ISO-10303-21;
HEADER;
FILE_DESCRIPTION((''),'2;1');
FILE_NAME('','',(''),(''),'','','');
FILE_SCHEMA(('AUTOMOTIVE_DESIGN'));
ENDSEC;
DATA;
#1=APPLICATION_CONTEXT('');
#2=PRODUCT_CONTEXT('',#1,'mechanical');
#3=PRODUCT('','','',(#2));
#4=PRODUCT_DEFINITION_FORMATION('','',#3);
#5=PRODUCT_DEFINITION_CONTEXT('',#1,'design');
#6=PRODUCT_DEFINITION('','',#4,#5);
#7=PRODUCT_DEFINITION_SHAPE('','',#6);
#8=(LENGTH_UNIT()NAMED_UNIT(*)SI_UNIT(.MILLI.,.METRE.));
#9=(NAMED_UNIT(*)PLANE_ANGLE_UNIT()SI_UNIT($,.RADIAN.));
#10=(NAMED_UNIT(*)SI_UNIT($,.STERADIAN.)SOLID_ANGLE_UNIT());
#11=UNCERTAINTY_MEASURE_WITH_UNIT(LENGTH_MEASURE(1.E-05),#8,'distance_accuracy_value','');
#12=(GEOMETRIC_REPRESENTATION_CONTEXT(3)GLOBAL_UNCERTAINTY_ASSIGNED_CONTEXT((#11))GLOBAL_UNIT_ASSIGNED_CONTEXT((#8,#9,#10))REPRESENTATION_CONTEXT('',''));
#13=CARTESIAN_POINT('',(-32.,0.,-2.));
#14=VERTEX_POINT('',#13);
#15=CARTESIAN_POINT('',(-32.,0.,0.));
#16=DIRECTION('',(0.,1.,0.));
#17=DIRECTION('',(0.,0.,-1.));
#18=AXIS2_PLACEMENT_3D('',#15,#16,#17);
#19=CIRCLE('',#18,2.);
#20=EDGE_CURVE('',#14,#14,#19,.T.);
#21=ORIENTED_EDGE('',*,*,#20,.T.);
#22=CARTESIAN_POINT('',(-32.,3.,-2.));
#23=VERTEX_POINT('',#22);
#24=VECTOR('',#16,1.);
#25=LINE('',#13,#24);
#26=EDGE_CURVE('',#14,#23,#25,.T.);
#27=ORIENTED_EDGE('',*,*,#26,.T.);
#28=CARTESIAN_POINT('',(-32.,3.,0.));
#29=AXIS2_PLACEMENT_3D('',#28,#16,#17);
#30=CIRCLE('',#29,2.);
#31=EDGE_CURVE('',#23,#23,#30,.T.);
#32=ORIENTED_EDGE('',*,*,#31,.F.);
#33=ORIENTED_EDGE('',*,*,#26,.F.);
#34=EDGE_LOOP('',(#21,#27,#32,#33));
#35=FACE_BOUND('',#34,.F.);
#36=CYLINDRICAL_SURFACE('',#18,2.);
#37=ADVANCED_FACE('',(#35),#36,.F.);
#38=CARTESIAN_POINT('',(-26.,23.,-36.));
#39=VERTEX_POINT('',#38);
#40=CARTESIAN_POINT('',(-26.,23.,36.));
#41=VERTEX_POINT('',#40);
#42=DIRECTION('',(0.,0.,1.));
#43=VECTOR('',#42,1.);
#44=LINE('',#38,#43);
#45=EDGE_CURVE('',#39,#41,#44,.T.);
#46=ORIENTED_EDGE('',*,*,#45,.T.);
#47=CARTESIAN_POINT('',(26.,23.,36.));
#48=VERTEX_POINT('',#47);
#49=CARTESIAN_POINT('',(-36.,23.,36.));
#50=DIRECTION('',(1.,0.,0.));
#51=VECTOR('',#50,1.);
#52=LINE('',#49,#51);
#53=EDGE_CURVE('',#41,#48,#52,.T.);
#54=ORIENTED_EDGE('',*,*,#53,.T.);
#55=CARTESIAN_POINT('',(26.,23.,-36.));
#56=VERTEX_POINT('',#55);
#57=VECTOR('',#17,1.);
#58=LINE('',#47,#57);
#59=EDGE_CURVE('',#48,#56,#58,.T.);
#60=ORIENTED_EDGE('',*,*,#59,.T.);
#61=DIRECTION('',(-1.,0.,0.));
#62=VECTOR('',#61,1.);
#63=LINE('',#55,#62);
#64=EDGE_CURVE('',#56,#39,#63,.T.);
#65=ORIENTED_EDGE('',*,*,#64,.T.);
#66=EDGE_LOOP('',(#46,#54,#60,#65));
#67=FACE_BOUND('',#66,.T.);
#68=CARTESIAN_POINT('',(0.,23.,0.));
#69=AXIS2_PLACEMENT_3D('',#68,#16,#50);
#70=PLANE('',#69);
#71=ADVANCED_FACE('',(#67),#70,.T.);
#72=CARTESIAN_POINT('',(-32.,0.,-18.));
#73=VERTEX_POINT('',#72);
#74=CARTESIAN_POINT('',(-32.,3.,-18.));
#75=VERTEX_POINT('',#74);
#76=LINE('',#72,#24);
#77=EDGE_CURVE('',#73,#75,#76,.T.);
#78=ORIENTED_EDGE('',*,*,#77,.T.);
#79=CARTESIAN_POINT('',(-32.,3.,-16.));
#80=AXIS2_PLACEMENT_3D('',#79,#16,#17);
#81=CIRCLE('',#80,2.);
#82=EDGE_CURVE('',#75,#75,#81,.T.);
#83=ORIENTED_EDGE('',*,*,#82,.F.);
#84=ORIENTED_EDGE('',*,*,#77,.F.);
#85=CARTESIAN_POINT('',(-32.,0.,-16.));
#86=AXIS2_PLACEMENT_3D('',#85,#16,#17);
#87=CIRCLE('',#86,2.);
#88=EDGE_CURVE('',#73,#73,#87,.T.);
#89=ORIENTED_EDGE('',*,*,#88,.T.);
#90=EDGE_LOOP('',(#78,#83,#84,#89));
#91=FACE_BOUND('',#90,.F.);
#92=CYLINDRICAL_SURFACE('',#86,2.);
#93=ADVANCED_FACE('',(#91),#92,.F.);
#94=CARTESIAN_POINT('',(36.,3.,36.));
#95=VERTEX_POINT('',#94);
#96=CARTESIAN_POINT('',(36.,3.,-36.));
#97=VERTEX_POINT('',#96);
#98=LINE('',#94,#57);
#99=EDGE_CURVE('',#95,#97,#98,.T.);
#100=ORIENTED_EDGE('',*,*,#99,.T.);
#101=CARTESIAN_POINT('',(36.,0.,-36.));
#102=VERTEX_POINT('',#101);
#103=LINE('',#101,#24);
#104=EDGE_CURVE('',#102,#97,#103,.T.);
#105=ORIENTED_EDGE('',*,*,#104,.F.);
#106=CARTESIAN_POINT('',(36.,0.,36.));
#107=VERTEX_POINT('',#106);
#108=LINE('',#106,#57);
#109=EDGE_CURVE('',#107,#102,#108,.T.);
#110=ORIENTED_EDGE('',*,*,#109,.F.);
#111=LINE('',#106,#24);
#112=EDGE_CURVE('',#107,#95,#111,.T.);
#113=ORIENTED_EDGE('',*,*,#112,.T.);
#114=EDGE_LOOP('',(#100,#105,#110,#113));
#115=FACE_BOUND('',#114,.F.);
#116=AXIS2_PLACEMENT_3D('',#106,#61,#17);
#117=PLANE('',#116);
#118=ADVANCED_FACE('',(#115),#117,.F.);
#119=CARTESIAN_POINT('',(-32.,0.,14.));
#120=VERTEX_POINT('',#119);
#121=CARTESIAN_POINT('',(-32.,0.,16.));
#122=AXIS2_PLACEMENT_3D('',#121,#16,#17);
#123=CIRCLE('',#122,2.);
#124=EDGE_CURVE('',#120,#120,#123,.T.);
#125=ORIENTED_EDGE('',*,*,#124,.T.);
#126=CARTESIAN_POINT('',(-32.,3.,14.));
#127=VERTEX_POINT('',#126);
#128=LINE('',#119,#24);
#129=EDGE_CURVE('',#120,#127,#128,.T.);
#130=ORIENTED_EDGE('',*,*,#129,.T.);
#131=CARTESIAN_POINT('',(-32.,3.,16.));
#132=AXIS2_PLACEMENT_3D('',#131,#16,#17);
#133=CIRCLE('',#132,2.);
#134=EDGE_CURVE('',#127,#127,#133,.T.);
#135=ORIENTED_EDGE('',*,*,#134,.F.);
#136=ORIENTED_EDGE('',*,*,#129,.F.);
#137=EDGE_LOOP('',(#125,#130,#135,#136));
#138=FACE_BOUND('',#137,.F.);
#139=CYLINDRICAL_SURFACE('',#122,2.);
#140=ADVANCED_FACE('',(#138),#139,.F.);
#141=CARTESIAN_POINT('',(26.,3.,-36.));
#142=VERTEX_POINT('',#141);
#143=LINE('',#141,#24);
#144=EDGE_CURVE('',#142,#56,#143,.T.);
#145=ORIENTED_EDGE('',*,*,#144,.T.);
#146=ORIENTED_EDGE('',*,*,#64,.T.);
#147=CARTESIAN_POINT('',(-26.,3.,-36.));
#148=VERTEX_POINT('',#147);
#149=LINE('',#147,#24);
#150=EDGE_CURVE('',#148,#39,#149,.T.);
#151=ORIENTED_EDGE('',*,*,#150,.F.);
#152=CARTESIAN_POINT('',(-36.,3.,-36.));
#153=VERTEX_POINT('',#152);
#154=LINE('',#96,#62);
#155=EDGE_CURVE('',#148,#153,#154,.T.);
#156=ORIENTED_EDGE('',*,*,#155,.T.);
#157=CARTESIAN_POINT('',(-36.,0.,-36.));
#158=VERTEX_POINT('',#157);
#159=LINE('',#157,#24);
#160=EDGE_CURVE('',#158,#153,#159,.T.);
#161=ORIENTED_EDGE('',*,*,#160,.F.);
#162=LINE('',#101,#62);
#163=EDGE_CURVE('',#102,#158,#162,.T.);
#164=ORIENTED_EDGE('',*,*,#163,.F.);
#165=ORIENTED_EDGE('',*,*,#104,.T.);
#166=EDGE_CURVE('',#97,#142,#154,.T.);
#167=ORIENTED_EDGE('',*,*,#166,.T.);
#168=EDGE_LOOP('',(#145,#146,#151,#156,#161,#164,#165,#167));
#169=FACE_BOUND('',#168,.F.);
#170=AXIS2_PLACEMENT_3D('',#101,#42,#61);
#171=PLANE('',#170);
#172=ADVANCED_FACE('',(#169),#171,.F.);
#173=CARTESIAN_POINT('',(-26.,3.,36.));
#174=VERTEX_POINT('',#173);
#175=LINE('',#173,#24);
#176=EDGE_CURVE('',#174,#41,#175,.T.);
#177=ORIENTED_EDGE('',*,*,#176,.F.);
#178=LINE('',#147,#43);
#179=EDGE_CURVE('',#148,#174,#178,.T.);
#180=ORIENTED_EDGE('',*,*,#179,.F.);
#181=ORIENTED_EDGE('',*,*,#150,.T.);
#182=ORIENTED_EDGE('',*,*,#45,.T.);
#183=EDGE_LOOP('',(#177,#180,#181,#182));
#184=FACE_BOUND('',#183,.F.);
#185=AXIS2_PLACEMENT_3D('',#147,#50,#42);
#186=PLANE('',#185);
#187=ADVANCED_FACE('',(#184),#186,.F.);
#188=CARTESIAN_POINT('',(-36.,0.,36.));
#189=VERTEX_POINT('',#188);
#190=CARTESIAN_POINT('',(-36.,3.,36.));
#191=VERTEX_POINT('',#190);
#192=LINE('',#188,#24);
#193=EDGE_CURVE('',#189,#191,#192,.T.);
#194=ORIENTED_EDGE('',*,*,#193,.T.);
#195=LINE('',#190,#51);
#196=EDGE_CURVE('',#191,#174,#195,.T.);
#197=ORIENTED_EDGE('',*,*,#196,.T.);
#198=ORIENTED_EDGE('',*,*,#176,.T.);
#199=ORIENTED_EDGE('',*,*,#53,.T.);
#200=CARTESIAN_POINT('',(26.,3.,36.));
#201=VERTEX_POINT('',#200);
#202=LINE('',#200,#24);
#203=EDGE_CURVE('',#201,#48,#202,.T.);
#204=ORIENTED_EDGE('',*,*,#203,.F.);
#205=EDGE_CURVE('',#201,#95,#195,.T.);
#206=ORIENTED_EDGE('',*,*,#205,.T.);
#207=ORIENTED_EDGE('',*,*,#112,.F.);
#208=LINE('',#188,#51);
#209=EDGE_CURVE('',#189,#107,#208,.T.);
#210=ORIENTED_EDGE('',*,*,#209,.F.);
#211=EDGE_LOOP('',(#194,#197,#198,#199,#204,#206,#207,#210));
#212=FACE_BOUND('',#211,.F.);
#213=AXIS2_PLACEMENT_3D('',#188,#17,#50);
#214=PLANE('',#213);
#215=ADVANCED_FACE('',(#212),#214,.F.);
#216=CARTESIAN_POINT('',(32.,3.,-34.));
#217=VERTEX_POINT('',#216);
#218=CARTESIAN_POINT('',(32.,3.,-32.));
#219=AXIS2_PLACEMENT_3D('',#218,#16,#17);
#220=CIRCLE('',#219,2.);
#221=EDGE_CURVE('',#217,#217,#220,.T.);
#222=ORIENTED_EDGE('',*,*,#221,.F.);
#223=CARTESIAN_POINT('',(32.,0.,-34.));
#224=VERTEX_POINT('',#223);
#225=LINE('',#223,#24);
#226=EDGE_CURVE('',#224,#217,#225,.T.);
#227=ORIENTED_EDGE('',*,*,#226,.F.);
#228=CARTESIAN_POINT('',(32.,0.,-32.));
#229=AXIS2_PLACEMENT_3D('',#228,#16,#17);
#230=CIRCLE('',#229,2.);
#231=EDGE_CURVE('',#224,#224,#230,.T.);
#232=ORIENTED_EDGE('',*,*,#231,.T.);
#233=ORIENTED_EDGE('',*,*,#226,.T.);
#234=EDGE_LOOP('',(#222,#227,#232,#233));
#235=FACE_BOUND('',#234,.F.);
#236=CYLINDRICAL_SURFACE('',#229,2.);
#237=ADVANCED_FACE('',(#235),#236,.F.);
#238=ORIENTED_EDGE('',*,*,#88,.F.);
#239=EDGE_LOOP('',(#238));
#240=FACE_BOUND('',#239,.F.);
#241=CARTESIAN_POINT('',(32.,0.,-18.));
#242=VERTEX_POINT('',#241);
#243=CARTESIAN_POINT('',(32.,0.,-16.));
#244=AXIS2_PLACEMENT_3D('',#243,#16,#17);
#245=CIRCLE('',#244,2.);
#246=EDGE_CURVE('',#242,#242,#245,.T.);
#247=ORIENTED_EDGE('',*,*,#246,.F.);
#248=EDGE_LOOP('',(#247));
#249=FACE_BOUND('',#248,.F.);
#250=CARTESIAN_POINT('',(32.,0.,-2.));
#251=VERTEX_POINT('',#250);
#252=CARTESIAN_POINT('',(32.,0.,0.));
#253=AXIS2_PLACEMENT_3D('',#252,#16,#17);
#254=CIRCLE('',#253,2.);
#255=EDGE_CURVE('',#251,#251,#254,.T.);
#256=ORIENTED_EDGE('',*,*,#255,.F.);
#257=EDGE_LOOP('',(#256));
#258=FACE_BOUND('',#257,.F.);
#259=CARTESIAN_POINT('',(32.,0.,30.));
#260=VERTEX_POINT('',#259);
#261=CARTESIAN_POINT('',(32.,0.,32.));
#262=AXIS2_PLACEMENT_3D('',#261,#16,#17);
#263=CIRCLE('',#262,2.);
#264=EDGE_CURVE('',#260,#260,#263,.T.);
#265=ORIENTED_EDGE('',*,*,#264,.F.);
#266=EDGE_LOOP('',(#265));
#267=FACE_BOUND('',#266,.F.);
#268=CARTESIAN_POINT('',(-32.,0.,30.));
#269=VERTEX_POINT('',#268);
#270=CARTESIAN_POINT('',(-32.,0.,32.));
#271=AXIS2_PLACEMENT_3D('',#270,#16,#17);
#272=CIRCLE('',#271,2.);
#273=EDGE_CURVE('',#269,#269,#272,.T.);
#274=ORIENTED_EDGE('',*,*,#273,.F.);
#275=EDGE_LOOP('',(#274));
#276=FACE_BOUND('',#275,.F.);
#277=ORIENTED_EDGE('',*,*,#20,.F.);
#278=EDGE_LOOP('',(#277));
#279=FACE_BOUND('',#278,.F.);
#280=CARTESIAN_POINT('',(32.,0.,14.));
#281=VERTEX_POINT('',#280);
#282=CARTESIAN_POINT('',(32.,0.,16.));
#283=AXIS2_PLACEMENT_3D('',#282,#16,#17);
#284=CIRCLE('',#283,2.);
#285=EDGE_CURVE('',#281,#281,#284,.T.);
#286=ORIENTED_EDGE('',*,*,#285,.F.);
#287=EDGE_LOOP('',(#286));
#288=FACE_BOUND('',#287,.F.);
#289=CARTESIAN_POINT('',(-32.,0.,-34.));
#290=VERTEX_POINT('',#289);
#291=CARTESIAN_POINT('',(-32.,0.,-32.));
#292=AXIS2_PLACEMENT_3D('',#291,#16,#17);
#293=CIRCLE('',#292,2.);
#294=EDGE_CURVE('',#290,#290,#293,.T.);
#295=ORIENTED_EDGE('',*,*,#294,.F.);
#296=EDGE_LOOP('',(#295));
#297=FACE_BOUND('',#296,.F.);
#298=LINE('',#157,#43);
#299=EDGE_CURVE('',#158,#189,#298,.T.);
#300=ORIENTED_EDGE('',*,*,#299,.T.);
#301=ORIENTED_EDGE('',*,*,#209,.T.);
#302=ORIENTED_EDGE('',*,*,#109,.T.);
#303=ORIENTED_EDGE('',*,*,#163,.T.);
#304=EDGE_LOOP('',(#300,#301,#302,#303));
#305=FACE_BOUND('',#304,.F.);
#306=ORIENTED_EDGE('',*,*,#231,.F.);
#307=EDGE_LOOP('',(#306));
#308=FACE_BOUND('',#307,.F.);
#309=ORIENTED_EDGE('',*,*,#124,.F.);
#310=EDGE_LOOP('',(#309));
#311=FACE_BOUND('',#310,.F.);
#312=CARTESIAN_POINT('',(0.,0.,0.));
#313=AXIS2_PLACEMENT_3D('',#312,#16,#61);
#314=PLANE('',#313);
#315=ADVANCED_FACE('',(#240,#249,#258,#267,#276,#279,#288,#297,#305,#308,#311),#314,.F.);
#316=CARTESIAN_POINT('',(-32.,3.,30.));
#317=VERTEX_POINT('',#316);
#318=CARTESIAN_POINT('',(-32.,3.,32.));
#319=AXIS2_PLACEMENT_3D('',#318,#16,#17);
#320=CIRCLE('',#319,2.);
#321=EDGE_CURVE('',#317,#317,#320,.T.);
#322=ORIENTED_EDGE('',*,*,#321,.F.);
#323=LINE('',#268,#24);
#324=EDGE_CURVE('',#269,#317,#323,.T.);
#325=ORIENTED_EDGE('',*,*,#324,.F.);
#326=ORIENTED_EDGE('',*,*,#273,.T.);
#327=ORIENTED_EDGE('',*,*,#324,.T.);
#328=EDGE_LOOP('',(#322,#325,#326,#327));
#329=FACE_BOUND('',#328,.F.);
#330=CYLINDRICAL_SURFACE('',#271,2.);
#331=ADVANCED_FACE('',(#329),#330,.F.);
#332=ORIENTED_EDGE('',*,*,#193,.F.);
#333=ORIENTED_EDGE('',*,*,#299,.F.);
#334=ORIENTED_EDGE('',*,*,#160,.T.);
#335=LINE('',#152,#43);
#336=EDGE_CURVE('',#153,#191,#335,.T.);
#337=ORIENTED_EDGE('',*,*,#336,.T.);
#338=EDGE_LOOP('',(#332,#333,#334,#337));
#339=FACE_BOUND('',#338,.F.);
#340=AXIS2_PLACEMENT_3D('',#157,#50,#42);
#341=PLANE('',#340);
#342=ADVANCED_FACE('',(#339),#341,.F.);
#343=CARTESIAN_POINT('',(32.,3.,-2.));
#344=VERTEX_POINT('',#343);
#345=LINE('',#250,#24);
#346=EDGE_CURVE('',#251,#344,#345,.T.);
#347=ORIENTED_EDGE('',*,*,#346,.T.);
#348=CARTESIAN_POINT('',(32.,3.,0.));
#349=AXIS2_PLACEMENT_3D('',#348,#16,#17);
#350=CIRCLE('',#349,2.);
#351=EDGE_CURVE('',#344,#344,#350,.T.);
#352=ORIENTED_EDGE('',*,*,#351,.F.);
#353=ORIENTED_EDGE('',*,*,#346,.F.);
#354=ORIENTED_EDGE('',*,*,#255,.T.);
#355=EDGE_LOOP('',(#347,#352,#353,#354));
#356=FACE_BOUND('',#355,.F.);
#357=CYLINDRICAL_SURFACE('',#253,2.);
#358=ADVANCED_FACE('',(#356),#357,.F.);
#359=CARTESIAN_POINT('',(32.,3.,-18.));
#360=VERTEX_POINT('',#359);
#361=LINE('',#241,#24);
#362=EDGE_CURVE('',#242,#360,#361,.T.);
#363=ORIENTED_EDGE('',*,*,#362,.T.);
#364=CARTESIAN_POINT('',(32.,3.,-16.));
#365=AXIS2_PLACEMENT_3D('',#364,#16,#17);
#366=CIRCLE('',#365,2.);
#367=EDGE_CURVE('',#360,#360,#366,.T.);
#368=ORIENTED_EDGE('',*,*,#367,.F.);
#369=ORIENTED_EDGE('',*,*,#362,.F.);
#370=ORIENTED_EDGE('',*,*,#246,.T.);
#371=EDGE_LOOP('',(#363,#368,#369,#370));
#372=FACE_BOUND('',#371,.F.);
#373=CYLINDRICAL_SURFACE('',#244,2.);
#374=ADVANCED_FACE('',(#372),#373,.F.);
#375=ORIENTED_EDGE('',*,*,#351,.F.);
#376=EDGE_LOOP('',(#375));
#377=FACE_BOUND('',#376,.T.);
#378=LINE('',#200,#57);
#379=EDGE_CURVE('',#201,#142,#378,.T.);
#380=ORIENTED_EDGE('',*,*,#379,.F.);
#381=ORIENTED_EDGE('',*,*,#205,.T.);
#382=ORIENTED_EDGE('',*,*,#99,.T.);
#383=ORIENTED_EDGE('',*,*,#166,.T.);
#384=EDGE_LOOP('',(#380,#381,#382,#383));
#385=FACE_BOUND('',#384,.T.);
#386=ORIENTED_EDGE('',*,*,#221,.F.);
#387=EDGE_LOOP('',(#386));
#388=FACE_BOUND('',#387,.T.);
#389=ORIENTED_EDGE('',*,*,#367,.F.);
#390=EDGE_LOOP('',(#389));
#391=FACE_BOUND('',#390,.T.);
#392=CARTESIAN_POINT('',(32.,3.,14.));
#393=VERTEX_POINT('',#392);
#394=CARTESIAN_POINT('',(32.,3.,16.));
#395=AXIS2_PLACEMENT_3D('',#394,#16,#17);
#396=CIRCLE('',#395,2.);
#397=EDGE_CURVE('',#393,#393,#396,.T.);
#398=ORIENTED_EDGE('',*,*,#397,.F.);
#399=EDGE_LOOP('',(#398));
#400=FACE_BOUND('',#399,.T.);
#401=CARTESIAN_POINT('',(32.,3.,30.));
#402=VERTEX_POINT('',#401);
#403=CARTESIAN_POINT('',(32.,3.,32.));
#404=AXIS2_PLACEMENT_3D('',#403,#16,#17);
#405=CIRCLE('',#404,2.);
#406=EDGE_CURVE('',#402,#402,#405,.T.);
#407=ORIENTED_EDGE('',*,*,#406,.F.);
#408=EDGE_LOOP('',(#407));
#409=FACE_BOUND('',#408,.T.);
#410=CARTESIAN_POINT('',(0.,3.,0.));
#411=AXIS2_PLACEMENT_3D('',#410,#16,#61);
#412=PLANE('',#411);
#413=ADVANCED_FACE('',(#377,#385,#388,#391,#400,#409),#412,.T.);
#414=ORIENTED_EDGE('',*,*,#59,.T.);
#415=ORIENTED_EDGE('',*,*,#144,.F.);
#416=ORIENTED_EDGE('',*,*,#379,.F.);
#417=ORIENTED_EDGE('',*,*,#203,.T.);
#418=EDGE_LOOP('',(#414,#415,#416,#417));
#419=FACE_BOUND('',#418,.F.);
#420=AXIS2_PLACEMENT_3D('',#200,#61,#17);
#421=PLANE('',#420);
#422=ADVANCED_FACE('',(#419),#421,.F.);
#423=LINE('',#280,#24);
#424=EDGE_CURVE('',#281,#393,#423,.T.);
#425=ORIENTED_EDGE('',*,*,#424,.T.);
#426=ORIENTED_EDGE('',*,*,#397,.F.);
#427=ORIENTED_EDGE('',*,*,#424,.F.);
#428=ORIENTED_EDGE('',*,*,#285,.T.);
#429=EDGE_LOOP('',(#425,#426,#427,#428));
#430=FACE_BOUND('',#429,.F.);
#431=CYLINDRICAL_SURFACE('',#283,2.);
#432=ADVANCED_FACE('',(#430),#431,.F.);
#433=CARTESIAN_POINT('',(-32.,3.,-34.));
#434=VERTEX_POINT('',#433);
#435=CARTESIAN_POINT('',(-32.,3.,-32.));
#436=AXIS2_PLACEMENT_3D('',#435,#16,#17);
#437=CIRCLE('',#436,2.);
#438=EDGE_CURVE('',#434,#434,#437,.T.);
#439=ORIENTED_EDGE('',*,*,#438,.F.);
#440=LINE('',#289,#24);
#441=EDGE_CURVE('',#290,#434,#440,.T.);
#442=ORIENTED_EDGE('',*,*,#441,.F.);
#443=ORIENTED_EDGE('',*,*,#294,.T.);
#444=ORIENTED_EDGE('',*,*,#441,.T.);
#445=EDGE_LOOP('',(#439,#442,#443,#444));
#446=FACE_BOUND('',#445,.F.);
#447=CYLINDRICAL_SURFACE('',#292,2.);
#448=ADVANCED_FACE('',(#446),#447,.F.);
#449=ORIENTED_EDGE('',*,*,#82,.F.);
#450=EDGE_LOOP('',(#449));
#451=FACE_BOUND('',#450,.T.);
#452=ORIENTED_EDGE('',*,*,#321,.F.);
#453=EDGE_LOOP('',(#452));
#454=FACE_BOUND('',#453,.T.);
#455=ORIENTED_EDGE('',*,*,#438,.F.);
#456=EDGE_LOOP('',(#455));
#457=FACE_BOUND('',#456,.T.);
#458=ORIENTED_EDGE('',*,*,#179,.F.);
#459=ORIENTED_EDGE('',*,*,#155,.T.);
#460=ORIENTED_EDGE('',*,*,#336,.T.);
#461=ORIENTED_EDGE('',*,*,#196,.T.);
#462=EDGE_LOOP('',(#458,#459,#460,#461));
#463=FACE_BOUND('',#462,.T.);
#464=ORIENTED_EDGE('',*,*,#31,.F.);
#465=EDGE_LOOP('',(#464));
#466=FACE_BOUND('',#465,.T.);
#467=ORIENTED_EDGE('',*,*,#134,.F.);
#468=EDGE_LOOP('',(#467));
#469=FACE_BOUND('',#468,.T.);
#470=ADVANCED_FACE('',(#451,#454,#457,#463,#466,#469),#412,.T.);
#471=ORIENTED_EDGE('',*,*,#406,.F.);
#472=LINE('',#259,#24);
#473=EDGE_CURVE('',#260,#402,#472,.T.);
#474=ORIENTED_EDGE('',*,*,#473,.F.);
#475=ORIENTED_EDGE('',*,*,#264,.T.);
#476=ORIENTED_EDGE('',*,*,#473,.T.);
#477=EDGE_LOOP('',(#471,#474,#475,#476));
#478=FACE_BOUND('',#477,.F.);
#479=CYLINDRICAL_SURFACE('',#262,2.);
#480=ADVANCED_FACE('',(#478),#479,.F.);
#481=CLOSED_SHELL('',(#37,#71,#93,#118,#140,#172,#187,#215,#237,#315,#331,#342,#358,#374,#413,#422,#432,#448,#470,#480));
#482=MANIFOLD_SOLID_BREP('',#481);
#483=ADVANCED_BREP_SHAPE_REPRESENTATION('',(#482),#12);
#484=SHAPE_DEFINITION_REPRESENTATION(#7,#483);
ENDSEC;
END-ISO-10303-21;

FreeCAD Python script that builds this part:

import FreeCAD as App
import Part
import Sketcher
Q = App.Units.Quantity


def add_polygon(sketch, points):
    """Adds a closed chain of lines whose ends are joined by coincident constraints."""
    first, n = sketch.GeometryCount, len(points)
    for a, b in zip(points, points[1:] + points[:1]):
        sketch.addGeometry(Part.LineSegment(App.Vector(*a, 0), App.Vector(*b, 0)), False)
    for i in range(n):
        sketch.addConstraint(Sketcher.Constraint("Coincident", first + i, 2, first + (i + 1) % n, 1))

doc = App.newDocument("Part")
body = doc.addObject("PartDesign::Body", "Body")

sketch1 = body.newObject("Sketcher::SketchObject", "Sketch")
sketch1.AttachmentSupport = (doc.getObject("XZ_Plane"), [""])
sketch1.MapMode = "FlatFace"
add_polygon(sketch1, [(36, 36), (36, -36), (-36, -36), (-36, 36)])
sketch1.addConstraint([
    Sketcher.Constraint("Vertical", 0),
    Sketcher.Constraint("Horizontal", 1),
    Sketcher.Constraint("Vertical", 2),
    Sketcher.Constraint("Horizontal", 3),
    Sketcher.Constraint("Symmetric", 0, 2, 2, 2, -1, 1),
    Sketcher.Constraint("Equal", 3, 0),
    Sketcher.Constraint("DistanceX", 1, 2, 1, 1, Q("72 mm")),
])
pad1 = body.newObject("PartDesign::Pad", "Pad")
pad1.Profile = sketch1
pad1.Length = 3
pad1.Reversed = True

sketch2 = body.newObject("Sketcher::SketchObject", "Sketch001")
sketch2.AttachmentSupport = (doc.getObject("XZ_Plane"), [""])
sketch2.MapMode = "FlatFace"
sketch2.AttachmentOffset = App.Placement(App.Vector(0, 0, -3), App.Rotation())
add_polygon(sketch2, [(-26, -36), (-26, 36), (26, 36), (26, -36)])
sketch2.addConstraint([
    Sketcher.Constraint("Vertical", 0),
    Sketcher.Constraint("Horizontal", 1),
    Sketcher.Constraint("Vertical", 2),
    Sketcher.Constraint("Horizontal", 3),
    Sketcher.Constraint("Symmetric", 0, 2, 2, 2, -1, 1),
    Sketcher.Constraint("DistanceX", 1, 1, 1, 2, Q("52 mm")),
    Sketcher.Constraint("DistanceY", 0, 1, 0, 2, Q("72 mm")),
])
pad2 = body.newObject("PartDesign::Pad", "Pad001")
pad2.Profile = sketch2
pad2.Length = 20
pad2.Reversed = True

sketch3 = body.newObject("Sketcher::SketchObject", "Sketch002")
sketch3.AttachmentSupport = (doc.getObject("XZ_Plane"), [""])
sketch3.MapMode = "FlatFace"
sketch3.addGeometry([
    Part.Circle(App.Vector(-32, 32, 0), App.Vector(0, 0, 1), 2),
    Part.Circle(App.Vector(-32, 16, 0), App.Vector(0, 0, 1), 2),
    Part.Circle(App.Vector(-32, 0, 0), App.Vector(0, 0, 1), 2),
    Part.Circle(App.Vector(-32, -16, 0), App.Vector(0, 0, 1), 2),
    Part.Circle(App.Vector(-32, -32, 0), App.Vector(0, 0, 1), 2),
], False)
sketch3.addConstraint([
    Sketcher.Constraint("Equal", 0, 1),
    Sketcher.Constraint("Equal", 1, 2),
    Sketcher.Constraint("Equal", 2, 3),
    Sketcher.Constraint("Equal", 3, 4),
    Sketcher.Constraint("Symmetric", 1, 3, 3, 3, -1),
    Sketcher.Constraint("Symmetric", 0, 3, 4, 3, -1),
    Sketcher.Constraint("PointOnObject", 2, 3, -1),
    Sketcher.Constraint("Vertical", 0, 3, 1, 3),
    Sketcher.Constraint("Vertical", 1, 3, 2, 3),
    Sketcher.Constraint("Diameter", 0, Q("4 mm")),
    Sketcher.Constraint("DistanceX", 0, 3, -1, 1, Q("32 mm")),
    Sketcher.Constraint("DistanceY", -1, 1, 0, 3, Q("32 mm")),
    Sketcher.Constraint("DistanceY", -1, 1, 1, 3, Q("16 mm")),
])
doc.recompute()
hole = body.newObject("PartDesign::Hole", "Hole")
hole.Profile = sketch3
hole.ThreadType = "None"
hole.Diameter = 4
hole.DepthType = "ThroughAll"

sketch4 = body.newObject("Sketcher::SketchObject", "Sketch003")
sketch4.AttachmentSupport = (doc.getObject("XZ_Plane"), [""])
sketch4.MapMode = "FlatFace"
sketch4.addGeometry([
    Part.Circle(App.Vector(32, 32, 0), App.Vector(0, 0, 1), 2),
    Part.Circle(App.Vector(32, 16, 0), App.Vector(0, 0, 1), 2),
    Part.Circle(App.Vector(32, 0, 0), App.Vector(0, 0, 1), 2),
    Part.Circle(App.Vector(32, -16, 0), App.Vector(0, 0, 1), 2),
    Part.Circle(App.Vector(32, -32, 0), App.Vector(0, 0, 1), 2),
], False)
sketch4.addConstraint([
    Sketcher.Constraint("Equal", 0, 1),
    Sketcher.Constraint("Equal", 1, 2),
    Sketcher.Constraint("Equal", 2, 3),
    Sketcher.Constraint("Equal", 3, 4),
    Sketcher.Constraint("Symmetric", 1, 3, 3, 3, -1),
    Sketcher.Constraint("Symmetric", 0, 3, 4, 3, -1),
    Sketcher.Constraint("PointOnObject", 2, 3, -1),
    Sketcher.Constraint("Vertical", 0, 3, 1, 3),
    Sketcher.Constraint("Vertical", 1, 3, 2, 3),
    Sketcher.Constraint("Diameter", 0, Q("4 mm")),
    Sketcher.Constraint("DistanceX", -1, 1, 0, 3, Q("32 mm")),
    Sketcher.Constraint("DistanceY", -1, 1, 0, 3, Q("32 mm")),
    Sketcher.Constraint("DistanceY", -1, 1, 1, 3, Q("16 mm")),
])
doc.recompute()
hole2 = body.newObject("PartDesign::Hole", "Hole001")
hole2.Profile = sketch4
hole2.ThreadType = "None"
hole2.Diameter = 4
hole2.DepthType = "ThroughAll"

doc.recompute()
